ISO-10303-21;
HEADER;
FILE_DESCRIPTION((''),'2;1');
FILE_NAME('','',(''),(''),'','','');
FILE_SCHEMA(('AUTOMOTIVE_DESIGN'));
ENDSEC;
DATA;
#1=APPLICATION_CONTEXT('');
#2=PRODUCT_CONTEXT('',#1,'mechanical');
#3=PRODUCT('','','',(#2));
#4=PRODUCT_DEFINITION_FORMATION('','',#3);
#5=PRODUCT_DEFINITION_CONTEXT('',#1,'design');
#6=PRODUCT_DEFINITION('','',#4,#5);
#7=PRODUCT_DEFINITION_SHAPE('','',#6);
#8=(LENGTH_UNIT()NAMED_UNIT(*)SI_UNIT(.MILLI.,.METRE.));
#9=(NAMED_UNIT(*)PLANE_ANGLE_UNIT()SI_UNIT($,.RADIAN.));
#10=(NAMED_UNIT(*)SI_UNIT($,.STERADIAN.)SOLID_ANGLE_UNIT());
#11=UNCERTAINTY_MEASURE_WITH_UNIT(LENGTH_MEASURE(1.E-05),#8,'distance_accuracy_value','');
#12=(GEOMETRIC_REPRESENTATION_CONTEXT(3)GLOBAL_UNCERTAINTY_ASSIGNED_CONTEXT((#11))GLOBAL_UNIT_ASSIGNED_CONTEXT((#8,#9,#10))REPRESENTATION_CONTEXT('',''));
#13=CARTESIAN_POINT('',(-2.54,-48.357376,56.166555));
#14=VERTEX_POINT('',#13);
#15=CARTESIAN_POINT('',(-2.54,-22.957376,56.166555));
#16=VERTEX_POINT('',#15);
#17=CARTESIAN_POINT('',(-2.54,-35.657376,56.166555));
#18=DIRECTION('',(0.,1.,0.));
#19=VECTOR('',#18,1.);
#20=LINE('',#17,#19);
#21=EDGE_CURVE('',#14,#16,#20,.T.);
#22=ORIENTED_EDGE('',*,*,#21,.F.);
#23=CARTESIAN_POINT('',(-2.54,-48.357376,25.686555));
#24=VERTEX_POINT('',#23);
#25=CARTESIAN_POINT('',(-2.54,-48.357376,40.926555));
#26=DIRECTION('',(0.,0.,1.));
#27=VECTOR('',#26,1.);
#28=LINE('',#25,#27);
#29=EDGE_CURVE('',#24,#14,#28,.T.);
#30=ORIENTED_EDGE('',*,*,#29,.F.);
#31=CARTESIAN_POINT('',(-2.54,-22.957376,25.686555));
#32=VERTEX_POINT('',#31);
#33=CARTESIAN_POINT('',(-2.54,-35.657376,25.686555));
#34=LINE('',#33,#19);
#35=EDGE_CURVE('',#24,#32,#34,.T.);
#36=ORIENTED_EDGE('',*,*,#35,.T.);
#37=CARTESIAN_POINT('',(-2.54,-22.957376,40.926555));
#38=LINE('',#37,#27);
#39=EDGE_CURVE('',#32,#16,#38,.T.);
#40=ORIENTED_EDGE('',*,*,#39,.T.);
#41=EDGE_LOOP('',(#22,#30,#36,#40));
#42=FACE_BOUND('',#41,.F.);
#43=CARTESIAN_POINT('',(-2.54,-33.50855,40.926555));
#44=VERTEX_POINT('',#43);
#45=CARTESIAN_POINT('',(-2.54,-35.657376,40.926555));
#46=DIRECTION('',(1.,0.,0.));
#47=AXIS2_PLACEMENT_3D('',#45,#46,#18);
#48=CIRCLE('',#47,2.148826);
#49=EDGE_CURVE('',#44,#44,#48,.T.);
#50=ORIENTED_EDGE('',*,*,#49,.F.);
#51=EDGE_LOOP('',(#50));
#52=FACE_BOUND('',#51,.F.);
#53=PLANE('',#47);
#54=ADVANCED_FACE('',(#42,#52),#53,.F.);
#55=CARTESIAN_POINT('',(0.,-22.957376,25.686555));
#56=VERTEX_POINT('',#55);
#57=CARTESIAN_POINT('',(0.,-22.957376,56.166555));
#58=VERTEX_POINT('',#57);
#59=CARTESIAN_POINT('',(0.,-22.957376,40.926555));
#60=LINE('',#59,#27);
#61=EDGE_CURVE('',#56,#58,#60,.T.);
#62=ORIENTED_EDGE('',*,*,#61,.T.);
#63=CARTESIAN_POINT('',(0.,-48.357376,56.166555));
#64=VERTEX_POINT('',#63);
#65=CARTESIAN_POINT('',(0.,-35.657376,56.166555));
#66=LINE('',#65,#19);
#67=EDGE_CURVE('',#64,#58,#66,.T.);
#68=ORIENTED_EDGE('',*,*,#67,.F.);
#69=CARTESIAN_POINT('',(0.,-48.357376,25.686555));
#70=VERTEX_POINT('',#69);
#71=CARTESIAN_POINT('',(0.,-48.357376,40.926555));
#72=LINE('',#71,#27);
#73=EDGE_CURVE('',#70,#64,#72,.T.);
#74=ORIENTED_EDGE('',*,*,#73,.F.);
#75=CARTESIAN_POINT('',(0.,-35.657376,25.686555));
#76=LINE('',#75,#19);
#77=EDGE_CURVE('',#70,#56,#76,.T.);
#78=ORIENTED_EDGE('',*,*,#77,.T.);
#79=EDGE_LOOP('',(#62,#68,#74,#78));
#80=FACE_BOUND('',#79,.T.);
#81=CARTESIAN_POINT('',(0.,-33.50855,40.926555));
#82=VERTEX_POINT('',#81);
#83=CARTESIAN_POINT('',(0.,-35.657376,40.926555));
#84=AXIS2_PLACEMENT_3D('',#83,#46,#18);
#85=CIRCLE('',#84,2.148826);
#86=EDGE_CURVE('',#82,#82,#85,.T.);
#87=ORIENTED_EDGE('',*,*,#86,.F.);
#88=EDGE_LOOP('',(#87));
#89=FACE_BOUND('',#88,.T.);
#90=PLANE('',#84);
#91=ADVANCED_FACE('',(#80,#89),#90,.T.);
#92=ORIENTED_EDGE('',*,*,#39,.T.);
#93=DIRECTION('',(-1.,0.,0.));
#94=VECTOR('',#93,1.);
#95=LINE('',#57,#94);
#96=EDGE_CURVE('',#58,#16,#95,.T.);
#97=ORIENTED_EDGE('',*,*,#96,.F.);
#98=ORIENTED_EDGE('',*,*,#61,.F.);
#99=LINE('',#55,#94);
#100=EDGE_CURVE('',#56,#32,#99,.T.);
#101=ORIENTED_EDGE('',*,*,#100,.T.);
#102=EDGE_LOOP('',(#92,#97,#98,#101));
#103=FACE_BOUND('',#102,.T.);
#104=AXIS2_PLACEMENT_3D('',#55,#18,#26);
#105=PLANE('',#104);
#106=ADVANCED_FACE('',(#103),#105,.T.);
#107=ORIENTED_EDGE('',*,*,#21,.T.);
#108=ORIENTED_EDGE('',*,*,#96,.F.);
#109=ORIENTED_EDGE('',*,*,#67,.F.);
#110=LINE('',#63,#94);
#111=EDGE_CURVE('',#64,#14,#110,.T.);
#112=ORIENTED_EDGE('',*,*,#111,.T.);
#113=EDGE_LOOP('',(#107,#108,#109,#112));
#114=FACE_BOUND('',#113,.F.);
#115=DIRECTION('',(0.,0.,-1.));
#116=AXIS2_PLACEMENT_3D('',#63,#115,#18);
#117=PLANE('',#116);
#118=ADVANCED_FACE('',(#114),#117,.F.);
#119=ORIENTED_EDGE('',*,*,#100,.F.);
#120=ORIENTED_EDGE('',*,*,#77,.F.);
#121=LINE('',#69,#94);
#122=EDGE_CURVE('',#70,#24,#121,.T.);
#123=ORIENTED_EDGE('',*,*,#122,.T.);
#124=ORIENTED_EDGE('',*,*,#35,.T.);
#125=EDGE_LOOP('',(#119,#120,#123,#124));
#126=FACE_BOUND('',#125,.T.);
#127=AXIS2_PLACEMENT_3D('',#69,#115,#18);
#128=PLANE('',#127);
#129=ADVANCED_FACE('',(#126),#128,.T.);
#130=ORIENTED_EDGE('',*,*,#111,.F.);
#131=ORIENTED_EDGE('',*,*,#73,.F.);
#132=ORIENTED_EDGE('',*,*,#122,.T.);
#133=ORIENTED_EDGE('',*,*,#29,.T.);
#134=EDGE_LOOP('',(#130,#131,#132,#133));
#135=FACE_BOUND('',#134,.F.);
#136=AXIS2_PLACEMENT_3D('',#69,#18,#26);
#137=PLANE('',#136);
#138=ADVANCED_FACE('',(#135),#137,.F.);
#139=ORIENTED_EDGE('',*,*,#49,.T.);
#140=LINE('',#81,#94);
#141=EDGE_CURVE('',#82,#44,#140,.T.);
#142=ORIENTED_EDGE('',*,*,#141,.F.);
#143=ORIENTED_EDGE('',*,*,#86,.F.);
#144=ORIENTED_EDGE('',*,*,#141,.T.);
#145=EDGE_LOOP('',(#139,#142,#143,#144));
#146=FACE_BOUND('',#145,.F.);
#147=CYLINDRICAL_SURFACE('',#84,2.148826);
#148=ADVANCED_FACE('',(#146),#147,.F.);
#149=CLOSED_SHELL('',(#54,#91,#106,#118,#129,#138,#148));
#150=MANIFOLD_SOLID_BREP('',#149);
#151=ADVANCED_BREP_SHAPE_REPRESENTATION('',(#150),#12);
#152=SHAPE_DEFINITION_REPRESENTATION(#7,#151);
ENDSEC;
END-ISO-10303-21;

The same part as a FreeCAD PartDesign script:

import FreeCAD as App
import Part
import Sketcher
Q = App.Units.Quantity

doc = App.newDocument("Part")
body = doc.addObject("PartDesign::Body", "Body")

sketch1 = doc.addObject("Sketcher::SketchObject", "Sketch")
body.addObject(sketch1)
sketch1.AttachmentSupport = (doc.YZ_Plane, [""])
sketch1.MapMode = "FlatFace"
sketch1.addGeometry([
    Part.LineSegment(App.Vector(-48.4, 56.2, 0), App.Vector(-48.4, 25.7, 0)),
    Part.LineSegment(App.Vector(-48.4, 25.7, 0), App.Vector(-23, 25.7, 0)),
    Part.LineSegment(App.Vector(-23, 25.7, 0), App.Vector(-23, 56.2, 0)),
    Part.LineSegment(App.Vector(-23, 56.2, 0), App.Vector(-48.4, 56.2, 0)),
    Part.Circle(App.Vector(-35.7, 40.9, 0), App.Vector(0, 0, 1), 2.1),
], False)
sketch1.addConstraint([
    Sketcher.Constraint("Coincident", 0, 2, 1, 1),
    Sketcher.Constraint("Coincident", 1, 2, 2, 1),
    Sketcher.Constraint("Coincident", 2, 2, 3, 1),
    Sketcher.Constraint("Coincident", 3, 2, 0, 1),
    Sketcher.Constraint("Vertical", 0),
    Sketcher.Constraint("Horizontal", 1),
    Sketcher.Constraint("Vertical", 2),
    Sketcher.Constraint("Horizontal", 3),
    Sketcher.Constraint("DistanceX", 1, 1, 1, 2, Q("1 in")),
    Sketcher.Constraint("DistanceY", 0, 2, 0, 1, Q("1.2 in")),
    Sketcher.Constraint("DistanceX", 0, 2, 4, 3, Q("0.5 in")),
    Sketcher.Constraint("DistanceY", 0, 2, 4, 3, Q("0.6 in")),
    Sketcher.Constraint("Diameter", 4, Q("4.297652 mm")),
    Sketcher.Constraint("DistanceX", 4, 3, -1, 1, Q("35.657376 mm")),
    Sketcher.Constraint("DistanceY", -1, 1, 4, 3, Q("40.926555 mm")),
])
pad1 = doc.addObject("PartDesign::Pad", "Pad")
body.addObject(pad1)
pad1.Profile = sketch1
pad1.Length = Q("0.1 in")
pad1.Reversed = True

doc.recompute()
